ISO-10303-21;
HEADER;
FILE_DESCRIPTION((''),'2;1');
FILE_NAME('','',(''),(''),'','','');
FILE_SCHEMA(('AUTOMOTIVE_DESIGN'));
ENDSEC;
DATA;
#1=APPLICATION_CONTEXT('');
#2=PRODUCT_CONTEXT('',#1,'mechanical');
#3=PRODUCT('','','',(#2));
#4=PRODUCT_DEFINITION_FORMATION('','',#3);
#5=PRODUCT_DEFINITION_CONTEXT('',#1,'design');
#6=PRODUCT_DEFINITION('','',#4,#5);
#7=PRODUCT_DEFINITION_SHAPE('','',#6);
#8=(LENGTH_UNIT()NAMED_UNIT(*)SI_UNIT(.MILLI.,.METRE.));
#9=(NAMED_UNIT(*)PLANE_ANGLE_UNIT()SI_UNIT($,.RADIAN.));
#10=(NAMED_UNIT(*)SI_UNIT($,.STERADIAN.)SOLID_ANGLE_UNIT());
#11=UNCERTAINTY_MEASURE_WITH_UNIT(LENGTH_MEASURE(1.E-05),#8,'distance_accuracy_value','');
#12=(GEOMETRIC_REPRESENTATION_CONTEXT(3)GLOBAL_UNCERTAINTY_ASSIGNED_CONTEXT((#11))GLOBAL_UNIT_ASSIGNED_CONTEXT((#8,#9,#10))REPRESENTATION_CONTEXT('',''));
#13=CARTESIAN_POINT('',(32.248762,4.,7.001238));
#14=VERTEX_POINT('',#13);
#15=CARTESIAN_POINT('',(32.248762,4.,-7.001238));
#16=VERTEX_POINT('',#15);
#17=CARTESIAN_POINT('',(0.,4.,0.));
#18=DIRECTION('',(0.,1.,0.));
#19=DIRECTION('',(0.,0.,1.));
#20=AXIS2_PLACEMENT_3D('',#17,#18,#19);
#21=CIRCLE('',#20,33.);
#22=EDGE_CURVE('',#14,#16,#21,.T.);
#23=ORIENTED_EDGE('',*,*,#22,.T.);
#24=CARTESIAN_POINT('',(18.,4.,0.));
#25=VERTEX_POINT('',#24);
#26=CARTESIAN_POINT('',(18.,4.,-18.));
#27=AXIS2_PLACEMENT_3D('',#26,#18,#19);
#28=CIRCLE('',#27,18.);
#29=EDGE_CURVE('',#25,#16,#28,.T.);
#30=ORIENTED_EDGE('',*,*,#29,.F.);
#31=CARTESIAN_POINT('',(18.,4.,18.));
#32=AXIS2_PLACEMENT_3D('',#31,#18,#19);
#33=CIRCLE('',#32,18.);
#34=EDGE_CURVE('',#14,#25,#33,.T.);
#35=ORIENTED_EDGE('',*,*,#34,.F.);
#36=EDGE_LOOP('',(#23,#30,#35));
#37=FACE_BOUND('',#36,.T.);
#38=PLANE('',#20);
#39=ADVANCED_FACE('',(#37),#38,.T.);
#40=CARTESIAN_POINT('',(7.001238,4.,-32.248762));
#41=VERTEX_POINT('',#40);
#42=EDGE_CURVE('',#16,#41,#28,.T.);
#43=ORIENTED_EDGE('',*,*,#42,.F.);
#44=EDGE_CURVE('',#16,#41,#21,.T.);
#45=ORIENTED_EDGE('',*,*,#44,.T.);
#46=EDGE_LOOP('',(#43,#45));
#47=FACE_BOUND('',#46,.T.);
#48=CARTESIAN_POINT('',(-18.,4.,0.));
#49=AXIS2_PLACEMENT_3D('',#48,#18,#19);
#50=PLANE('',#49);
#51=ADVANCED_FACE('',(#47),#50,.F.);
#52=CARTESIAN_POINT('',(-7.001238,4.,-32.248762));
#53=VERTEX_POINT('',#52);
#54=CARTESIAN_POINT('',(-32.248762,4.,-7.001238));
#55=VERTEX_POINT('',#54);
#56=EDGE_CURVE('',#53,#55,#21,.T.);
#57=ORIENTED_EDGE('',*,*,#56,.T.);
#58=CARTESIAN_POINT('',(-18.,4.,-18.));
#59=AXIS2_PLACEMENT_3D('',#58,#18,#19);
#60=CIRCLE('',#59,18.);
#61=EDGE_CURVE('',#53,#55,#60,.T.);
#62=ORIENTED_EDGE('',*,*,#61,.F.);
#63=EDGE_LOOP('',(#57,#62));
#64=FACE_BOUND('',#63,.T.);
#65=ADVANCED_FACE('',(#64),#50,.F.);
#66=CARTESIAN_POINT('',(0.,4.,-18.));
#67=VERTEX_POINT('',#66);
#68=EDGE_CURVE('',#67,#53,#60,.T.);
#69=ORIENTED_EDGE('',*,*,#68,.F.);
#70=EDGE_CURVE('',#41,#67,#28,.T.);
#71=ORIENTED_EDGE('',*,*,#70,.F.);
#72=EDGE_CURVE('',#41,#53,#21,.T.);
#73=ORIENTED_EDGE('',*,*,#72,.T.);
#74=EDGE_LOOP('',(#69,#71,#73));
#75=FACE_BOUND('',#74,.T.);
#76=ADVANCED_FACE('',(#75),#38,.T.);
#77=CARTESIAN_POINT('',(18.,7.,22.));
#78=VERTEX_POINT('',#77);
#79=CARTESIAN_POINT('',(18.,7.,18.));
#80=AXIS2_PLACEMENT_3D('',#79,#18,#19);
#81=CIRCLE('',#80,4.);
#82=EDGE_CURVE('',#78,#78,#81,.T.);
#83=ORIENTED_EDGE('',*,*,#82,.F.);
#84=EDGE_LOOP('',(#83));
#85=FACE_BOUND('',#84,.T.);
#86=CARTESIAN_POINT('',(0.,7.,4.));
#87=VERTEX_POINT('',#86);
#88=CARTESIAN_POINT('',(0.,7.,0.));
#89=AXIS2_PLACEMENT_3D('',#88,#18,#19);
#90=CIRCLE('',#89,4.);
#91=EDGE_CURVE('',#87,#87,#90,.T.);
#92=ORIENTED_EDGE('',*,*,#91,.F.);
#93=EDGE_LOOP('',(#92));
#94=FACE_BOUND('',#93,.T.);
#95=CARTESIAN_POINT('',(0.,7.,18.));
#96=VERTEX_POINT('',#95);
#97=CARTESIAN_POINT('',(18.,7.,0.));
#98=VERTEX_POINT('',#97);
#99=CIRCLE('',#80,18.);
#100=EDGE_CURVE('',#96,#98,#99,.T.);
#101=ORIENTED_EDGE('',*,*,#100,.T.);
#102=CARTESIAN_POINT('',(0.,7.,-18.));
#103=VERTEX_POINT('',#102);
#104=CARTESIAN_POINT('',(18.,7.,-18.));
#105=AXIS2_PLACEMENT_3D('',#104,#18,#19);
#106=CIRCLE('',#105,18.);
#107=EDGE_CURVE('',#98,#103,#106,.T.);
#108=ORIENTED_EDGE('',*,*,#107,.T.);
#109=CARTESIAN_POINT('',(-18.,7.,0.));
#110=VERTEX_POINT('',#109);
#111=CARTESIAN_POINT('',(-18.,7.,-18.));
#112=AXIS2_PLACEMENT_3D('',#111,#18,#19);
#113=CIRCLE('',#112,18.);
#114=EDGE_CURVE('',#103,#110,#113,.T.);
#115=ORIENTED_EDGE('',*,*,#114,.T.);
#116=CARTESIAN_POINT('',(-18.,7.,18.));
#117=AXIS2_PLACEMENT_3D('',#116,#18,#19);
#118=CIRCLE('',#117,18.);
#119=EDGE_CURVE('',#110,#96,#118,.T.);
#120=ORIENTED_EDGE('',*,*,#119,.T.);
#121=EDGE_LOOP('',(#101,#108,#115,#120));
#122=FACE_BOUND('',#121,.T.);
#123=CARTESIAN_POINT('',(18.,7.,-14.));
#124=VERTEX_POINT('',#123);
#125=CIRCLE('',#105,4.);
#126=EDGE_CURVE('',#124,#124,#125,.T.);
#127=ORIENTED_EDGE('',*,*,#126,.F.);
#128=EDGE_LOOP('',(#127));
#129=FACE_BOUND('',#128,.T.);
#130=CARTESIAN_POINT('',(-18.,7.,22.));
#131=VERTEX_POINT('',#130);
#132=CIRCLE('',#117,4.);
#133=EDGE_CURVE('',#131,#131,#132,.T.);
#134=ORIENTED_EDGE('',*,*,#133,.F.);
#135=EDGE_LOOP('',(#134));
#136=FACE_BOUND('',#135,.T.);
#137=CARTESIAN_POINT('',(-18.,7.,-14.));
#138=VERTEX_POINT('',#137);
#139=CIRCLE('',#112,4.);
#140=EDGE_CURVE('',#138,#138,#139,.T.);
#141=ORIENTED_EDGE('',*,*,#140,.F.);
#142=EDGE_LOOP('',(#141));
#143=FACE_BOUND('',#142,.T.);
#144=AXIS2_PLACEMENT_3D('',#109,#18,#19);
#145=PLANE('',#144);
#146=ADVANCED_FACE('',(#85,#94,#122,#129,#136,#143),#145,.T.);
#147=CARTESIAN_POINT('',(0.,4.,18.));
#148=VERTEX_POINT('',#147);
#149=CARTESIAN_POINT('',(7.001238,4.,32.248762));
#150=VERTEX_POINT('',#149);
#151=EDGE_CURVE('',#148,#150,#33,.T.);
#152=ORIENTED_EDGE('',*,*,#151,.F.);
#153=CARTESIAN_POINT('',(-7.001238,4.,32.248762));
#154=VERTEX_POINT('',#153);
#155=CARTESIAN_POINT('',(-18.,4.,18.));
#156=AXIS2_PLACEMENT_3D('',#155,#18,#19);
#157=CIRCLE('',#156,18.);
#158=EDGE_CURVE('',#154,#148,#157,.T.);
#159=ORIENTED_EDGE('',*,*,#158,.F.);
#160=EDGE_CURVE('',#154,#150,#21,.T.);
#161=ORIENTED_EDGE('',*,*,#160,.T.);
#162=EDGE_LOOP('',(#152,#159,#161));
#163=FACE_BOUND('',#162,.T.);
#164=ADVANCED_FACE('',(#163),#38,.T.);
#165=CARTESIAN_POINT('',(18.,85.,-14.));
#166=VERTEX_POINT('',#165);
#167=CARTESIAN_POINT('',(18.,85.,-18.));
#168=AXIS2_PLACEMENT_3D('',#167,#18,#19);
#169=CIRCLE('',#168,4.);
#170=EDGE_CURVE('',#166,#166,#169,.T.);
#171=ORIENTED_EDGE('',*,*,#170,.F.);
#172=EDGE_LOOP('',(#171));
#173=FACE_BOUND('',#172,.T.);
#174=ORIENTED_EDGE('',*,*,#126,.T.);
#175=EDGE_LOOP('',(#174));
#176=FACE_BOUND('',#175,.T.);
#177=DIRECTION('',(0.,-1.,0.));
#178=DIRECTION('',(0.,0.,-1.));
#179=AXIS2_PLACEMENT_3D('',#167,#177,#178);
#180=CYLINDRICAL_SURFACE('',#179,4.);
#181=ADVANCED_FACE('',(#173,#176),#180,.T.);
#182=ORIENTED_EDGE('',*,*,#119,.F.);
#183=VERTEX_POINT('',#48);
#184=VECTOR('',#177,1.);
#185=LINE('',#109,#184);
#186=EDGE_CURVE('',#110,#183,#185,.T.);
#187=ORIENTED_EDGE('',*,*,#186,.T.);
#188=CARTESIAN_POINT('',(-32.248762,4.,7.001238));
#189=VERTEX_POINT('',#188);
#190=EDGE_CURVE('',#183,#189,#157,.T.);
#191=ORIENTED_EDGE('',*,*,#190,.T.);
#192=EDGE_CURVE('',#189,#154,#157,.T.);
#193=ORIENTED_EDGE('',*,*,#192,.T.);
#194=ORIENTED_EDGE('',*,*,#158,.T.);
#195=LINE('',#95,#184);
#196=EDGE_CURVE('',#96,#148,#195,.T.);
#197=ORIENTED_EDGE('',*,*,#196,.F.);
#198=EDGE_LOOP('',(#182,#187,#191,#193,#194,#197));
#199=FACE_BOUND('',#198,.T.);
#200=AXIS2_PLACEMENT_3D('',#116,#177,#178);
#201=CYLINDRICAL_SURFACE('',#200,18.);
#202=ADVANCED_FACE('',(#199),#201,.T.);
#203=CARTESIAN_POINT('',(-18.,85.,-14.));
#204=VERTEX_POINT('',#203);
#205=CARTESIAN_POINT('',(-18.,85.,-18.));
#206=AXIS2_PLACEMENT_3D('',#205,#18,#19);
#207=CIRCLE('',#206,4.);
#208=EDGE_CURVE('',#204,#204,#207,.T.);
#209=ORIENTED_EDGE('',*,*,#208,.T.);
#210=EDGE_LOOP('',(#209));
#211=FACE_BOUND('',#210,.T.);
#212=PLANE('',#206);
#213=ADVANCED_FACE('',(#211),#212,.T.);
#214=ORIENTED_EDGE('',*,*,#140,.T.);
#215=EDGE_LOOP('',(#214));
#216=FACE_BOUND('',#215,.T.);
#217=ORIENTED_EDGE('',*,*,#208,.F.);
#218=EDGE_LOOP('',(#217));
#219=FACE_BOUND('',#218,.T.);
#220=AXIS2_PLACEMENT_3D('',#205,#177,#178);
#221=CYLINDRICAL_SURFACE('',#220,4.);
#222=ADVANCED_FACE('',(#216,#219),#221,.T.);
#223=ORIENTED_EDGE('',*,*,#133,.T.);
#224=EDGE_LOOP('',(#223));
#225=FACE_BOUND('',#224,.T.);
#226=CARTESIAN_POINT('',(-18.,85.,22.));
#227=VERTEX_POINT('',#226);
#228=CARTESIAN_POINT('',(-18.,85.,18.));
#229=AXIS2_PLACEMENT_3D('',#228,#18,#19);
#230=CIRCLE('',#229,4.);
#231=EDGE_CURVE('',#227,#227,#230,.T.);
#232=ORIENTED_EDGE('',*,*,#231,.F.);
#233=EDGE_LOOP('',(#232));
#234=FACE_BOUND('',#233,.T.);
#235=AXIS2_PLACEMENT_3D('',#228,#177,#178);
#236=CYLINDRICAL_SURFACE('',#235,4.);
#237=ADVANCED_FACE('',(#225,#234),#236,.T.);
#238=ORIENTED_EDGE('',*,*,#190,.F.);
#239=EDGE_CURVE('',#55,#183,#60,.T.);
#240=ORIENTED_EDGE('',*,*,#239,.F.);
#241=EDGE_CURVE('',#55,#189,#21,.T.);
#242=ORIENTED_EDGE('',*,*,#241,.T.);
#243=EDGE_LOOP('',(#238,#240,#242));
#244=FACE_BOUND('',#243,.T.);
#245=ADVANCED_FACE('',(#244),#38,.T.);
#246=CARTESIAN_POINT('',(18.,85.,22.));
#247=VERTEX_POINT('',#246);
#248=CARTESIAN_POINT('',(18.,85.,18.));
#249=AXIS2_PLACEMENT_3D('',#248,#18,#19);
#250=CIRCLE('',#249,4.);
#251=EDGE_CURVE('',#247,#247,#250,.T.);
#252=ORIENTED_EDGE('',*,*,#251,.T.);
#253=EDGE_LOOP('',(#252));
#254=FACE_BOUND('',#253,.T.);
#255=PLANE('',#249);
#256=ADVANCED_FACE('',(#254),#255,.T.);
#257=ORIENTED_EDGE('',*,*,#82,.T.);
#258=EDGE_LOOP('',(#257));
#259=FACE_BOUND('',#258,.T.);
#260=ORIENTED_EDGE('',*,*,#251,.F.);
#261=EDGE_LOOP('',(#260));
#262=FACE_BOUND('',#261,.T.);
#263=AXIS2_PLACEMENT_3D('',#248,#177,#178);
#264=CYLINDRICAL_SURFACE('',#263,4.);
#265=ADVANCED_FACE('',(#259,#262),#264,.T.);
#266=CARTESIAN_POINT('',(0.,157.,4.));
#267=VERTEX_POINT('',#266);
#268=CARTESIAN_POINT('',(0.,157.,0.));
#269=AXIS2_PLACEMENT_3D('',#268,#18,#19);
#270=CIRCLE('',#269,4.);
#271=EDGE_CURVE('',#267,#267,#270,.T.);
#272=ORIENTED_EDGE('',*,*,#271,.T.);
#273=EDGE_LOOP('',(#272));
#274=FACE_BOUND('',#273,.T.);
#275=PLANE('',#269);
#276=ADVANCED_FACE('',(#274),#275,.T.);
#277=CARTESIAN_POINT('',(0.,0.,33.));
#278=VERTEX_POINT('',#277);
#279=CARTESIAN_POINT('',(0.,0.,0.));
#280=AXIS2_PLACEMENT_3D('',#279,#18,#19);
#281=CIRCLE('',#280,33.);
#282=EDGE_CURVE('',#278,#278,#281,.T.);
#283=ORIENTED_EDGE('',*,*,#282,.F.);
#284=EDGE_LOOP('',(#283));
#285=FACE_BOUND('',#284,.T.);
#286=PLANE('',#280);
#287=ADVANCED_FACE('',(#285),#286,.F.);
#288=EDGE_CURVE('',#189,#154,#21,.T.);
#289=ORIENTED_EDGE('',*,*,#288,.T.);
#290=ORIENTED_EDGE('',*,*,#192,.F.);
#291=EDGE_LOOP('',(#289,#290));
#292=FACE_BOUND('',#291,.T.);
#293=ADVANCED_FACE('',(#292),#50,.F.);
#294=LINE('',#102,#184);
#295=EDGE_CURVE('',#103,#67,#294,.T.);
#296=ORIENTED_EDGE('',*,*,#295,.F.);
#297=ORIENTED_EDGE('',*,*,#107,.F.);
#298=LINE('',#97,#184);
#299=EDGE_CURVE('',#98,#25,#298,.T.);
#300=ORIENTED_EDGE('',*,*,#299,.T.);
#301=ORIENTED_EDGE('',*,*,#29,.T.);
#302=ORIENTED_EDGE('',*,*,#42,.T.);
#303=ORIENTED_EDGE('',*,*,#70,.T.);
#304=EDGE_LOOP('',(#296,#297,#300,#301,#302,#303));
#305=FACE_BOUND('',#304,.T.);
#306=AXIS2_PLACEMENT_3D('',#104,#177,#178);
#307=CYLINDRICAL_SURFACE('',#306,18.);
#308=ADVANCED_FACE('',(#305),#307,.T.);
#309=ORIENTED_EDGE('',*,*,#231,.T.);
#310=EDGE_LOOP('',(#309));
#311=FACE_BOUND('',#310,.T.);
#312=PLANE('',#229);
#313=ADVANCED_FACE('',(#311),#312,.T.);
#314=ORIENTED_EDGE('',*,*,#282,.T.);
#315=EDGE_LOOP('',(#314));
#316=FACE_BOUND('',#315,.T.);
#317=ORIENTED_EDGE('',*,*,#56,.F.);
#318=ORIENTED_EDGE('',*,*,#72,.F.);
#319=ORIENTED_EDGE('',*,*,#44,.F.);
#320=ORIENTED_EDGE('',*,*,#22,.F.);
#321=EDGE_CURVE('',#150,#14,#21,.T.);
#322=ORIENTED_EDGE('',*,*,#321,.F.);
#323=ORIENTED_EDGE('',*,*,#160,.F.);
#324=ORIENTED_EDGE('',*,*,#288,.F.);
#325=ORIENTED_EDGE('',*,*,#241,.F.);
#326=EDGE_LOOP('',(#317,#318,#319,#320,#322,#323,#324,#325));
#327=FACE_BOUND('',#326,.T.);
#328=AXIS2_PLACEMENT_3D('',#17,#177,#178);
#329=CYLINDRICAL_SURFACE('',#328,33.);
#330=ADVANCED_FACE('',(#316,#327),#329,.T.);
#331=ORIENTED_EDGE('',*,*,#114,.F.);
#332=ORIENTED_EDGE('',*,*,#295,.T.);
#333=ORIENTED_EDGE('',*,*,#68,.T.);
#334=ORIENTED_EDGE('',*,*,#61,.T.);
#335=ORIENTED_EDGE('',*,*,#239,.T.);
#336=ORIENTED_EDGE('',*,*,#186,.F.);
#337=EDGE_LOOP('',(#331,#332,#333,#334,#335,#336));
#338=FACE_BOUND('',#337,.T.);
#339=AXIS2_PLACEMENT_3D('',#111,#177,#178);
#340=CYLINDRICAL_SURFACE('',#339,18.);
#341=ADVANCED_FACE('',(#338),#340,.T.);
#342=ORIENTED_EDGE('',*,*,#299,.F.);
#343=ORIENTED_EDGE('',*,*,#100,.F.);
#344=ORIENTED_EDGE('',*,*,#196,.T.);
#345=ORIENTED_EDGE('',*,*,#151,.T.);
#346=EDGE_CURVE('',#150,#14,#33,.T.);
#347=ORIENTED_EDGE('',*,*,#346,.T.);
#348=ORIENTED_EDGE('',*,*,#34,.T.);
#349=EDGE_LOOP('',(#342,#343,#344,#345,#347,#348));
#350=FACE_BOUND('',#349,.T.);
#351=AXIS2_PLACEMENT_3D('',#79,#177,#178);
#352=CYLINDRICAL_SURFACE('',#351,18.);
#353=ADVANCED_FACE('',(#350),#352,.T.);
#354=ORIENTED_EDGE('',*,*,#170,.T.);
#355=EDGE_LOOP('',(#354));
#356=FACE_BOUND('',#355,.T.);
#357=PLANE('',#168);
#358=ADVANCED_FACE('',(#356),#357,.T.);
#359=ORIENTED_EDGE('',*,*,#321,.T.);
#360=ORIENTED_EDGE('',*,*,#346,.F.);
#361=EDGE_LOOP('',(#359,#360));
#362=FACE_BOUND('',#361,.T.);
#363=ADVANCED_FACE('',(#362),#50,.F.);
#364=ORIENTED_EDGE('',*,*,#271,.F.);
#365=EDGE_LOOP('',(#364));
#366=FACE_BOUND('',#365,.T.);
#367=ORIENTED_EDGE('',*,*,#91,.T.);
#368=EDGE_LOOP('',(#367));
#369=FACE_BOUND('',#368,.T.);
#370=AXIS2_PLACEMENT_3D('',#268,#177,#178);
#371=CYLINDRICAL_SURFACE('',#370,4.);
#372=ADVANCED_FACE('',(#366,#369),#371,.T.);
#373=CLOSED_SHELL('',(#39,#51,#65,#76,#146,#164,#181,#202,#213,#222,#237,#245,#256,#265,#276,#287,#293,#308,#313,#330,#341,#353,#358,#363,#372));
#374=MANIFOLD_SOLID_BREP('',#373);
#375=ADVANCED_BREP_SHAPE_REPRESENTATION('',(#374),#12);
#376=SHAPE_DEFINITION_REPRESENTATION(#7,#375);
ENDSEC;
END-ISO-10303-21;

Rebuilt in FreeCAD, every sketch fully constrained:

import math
import FreeCAD as App
import Part
import Sketcher

V = App.Vector
Q = App.Units.Quantity

doc = App.newDocument("Part")
body = doc.addObject("PartDesign::Body", "Body")

# Sketch on XZ plane
sketch1 = body.newObject("Sketcher::SketchObject", "Sketch")
sketch1.AttachmentSupport = (doc.getObject("XZ_Plane"), [""])
sketch1.MapMode = "FlatFace"
sketch1.addGeometry(Part.Circle(V(0, 0, 0), V(0, 0, 1), 33), False)
sketch1.addConstraint([
    Sketcher.Constraint("Coincident", 0, 3, -1, 1),
    Sketcher.Constraint("Diameter", 0, Q("66 mm")),
])
pad1 = body.newObject("PartDesign::Pad", "Pad")
pad1.Profile = sketch1
pad1.Length = 4
pad1.Reversed = True

# Sketch on XZ plane
sketch2 = body.newObject("Sketcher::SketchObject", "Sketch001")
sketch2.AttachmentSupport = (doc.getObject("XZ_Plane"), [""])
sketch2.MapMode = "FlatFace"
sketch2.AttachmentOffset = App.Placement(V(0, 0, -4), App.Rotation())
sketch2.addGeometry([
    Part.ArcOfCircle(Part.Circle(V(18, -18, 0), V(0, 0, 1), 18), math.radians(180), math.radians(450)),
    Part.ArcOfCircle(Part.Circle(V(-18, -18, 0), V(0, 0, 1), 18), math.radians(90), math.radians(360)),
    Part.ArcOfCircle(Part.Circle(V(-18, 18, 0), V(0, 0, 1), 18), math.radians(0), math.radians(270)),
    Part.ArcOfCircle(Part.Circle(V(18, 18, 0), V(0, 0, 1), 18), math.radians(-90), math.radians(180)),
], False)
sketch2.addConstraint([
    Sketcher.Constraint("Tangent", 0, 1, 1, 2),
    Sketcher.Constraint("Tangent", 1, 1, 2, 2),
    Sketcher.Constraint("Tangent", 2, 1, 3, 2),
    Sketcher.Constraint("Tangent", 3, 1, 0, 2),
    Sketcher.Constraint("Equal", 0, 1),
    Sketcher.Constraint("Equal", 1, 2),
    Sketcher.Constraint("Equal", 2, 3),
    Sketcher.Constraint("Symmetric", 0, 3, 2, 3, -1, 1),
    Sketcher.Constraint("Symmetric", 0, 3, 1, 3, -2),
    Sketcher.Constraint("Radius", 0, Q("18 mm")),
])
pad2 = body.newObject("PartDesign::Pad", "Pad001")
pad2.Profile = sketch2
pad2.Length = 3
pad2.Reversed = True

# Sketch on XZ plane
sketch3 = body.newObject("Sketcher::SketchObject", "Sketch002")
sketch3.AttachmentSupport = (doc.getObject("XZ_Plane"), [""])
sketch3.MapMode = "FlatFace"
sketch3.AttachmentOffset = App.Placement(V(0, 0, -7), App.Rotation())
sketch3.addGeometry([
    Part.Circle(V(-18, -18, 0), V(0, 0, 1), 4),
    Part.Circle(V(18, -18, 0), V(0, 0, 1), 4),
    Part.Circle(V(18, 18, 0), V(0, 0, 1), 4),
    Part.Circle(V(-18, 18, 0), V(0, 0, 1), 4),
], False)
sketch3.addConstraint([
    Sketcher.Constraint("Equal", 0, 1),
    Sketcher.Constraint("Equal", 1, 2),
    Sketcher.Constraint("Equal", 2, 3),
    Sketcher.Constraint("Symmetric", 0, 3, 2, 3, -1, 1),
    Sketcher.Constraint("Symmetric", 1, 3, 3, 3, -1, 1),
    Sketcher.Constraint("Symmetric", 0, 3, 1, 3, -2),
    Sketcher.Constraint("Diameter", 0, Q("8 mm")),
    Sketcher.Constraint("DistanceX", 0, 3, -1, 1, Q("18 mm")),
    Sketcher.Constraint("DistanceY", 0, 3, -1, 1, Q("18 mm")),
])
pad3 = body.newObject("PartDesign::Pad", "Pad002")
pad3.Profile = sketch3
pad3.Length = 78
pad3.Reversed = True

# Sketch on XZ plane
sketch4 = body.newObject("Sketcher::SketchObject", "Sketch003")
sketch4.AttachmentSupport = (doc.getObject("XZ_Plane"), [""])
sketch4.MapMode = "FlatFace"
sketch4.AttachmentOffset = App.Placement(V(0, 0, -7), App.Rotation())
sketch4.addGeometry(Part.Circle(V(0, 0, 0), V(0, 0, 1), 4), False)
sketch4.addConstraint([
    Sketcher.Constraint("Coincident", 0, 3, -1, 1),
    Sketcher.Constraint("Diameter", 0, Q("8 mm")),
])
pad4 = body.newObject("PartDesign::Pad", "Pad003")
pad4.Profile = sketch4
pad4.Length = 150
pad4.Reversed = True

doc.recompute()
